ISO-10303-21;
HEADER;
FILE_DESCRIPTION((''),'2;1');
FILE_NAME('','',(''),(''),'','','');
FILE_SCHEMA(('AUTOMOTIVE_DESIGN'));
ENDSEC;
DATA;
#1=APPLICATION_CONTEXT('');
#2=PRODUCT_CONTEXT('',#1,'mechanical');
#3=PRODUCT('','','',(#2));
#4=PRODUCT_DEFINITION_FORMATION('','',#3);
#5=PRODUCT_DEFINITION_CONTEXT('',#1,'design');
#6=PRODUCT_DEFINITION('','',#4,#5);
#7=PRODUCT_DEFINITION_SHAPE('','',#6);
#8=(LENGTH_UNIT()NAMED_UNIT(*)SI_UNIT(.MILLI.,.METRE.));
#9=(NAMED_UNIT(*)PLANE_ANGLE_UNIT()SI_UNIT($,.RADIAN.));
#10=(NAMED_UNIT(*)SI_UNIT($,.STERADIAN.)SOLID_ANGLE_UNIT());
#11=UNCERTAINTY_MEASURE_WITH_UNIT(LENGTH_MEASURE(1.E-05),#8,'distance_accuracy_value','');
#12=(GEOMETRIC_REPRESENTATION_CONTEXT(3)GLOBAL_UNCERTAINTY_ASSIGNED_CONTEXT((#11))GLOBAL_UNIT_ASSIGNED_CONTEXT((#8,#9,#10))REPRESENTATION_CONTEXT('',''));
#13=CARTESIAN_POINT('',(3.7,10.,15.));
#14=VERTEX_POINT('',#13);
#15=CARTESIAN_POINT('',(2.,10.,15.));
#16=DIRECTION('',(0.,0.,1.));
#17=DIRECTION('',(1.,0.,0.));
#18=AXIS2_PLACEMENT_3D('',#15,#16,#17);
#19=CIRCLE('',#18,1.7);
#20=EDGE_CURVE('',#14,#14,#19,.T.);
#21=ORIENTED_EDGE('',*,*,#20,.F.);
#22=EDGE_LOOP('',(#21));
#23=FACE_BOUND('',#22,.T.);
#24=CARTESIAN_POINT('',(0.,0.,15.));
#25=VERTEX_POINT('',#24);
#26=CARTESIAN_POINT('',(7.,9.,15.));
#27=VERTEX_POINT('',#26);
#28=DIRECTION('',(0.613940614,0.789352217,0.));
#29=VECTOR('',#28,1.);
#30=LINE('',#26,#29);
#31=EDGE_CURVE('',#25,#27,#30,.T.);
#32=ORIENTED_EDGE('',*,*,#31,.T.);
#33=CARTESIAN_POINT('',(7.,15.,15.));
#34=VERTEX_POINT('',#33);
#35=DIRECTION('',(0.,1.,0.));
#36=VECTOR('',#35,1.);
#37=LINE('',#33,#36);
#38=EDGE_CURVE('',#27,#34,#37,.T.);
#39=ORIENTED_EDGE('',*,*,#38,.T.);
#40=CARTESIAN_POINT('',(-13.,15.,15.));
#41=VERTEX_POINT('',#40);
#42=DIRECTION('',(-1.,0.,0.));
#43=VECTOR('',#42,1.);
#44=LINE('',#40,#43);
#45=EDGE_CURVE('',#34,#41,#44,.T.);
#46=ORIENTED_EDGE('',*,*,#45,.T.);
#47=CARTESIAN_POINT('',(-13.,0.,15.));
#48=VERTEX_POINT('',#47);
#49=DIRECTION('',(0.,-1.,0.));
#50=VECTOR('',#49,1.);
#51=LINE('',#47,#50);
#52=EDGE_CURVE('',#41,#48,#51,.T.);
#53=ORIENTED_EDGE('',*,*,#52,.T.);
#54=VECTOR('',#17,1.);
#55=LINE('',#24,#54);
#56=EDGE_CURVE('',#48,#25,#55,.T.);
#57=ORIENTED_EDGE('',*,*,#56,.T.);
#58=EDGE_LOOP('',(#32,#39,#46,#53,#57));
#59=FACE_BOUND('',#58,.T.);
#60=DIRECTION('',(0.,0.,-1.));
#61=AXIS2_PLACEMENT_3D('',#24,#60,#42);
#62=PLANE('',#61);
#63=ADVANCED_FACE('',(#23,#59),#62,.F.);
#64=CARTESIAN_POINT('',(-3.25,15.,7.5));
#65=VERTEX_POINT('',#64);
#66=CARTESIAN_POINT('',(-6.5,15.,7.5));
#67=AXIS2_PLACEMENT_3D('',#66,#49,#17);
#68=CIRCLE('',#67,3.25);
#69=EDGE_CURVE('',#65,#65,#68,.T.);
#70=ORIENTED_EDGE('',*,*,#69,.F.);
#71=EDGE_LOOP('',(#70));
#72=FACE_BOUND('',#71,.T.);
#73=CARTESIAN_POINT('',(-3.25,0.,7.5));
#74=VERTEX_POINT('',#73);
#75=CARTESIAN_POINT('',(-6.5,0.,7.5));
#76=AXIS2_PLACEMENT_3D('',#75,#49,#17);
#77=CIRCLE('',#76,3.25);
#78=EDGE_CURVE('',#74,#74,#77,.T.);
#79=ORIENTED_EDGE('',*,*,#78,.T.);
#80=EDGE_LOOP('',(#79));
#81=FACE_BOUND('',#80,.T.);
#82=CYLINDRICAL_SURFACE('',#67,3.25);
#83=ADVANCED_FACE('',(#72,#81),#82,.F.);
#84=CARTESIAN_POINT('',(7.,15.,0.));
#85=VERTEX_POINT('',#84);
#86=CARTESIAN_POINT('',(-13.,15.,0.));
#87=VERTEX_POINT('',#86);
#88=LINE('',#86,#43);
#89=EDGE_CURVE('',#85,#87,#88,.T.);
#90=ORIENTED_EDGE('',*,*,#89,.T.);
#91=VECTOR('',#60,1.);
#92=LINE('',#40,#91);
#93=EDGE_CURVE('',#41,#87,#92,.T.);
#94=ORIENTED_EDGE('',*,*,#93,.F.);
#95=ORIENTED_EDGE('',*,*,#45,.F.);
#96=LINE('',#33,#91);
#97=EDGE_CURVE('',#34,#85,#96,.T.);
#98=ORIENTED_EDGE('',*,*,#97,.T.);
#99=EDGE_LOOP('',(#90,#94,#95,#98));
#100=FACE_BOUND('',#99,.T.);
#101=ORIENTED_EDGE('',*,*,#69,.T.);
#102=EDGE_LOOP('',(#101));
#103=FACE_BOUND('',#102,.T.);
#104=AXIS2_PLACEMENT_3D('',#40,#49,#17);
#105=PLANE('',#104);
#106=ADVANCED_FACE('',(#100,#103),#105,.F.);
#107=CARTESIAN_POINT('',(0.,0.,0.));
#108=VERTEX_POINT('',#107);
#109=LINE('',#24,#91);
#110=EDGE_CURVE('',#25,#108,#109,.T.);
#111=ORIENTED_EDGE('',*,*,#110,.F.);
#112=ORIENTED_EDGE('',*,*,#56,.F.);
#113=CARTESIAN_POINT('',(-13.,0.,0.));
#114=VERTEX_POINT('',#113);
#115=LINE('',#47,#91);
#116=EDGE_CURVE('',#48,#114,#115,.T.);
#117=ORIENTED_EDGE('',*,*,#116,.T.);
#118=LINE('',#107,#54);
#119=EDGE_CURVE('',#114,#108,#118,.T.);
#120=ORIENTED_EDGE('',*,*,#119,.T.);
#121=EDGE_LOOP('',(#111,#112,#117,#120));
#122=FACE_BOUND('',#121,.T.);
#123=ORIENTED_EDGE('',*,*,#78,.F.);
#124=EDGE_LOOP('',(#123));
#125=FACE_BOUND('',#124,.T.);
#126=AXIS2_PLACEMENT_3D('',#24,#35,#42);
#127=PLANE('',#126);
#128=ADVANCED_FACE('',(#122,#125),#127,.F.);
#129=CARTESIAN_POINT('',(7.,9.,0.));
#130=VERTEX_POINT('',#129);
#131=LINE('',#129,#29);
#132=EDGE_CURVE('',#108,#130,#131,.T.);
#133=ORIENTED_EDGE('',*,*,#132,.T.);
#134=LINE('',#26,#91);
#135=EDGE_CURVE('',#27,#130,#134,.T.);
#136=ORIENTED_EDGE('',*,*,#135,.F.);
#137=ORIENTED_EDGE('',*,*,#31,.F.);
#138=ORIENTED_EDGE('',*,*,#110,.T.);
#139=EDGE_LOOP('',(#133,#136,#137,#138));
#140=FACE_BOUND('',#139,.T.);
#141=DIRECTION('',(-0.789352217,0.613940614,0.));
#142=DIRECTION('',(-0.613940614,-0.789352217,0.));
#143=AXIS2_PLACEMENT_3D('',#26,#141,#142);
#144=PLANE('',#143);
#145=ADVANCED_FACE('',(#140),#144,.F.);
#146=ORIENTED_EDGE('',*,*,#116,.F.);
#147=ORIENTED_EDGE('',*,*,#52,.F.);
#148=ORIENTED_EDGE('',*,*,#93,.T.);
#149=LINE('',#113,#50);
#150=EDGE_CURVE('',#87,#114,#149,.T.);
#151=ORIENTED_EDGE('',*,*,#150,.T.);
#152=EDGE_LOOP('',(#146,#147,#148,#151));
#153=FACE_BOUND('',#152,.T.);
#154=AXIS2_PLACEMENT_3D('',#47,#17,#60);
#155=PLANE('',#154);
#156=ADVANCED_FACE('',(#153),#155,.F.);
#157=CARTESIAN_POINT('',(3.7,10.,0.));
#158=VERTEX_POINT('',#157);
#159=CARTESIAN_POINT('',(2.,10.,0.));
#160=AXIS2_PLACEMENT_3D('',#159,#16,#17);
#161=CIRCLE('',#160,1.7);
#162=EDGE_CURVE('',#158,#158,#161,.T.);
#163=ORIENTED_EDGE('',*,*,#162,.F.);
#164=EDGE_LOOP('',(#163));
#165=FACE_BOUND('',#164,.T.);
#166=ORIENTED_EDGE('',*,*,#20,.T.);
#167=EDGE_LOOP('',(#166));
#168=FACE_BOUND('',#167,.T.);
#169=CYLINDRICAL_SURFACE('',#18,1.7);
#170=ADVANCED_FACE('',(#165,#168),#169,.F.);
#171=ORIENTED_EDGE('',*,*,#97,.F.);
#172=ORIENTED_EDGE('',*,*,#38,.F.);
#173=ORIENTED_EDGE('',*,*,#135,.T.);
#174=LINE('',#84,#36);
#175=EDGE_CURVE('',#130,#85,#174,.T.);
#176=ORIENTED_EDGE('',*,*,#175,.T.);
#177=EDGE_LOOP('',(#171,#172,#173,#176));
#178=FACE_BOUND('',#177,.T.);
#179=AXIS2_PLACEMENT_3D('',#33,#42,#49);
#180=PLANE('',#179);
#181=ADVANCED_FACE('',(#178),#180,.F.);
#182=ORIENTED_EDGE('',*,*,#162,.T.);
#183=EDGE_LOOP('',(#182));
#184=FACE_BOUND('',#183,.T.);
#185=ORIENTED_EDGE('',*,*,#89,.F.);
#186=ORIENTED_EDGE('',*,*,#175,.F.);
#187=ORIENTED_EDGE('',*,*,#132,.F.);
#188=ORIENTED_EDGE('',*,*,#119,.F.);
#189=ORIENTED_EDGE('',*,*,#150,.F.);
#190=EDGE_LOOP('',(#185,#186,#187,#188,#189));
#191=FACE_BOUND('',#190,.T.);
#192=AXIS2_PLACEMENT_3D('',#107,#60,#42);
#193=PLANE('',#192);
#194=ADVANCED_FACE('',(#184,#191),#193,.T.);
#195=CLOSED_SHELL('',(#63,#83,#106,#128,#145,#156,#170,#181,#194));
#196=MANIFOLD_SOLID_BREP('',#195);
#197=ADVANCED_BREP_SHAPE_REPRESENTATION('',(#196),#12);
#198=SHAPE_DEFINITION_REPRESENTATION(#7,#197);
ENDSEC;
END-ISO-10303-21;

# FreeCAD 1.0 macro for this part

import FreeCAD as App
import Part
import Sketcher

V = App.Vector


def add_polygon(sketch, points):
    """Adds a closed chain of lines whose ends are joined by coincident constraints."""
    first, n = sketch.GeometryCount, len(points)
    for a, b in zip(points, points[1:] + points[:1]):
        sketch.addGeometry(Part.LineSegment(App.Vector(*a, 0), App.Vector(*b, 0)), False)
    for i in range(n):
        sketch.addConstraint(Sketcher.Constraint("Coincident", first + i, 2, first + (i + 1) % n, 1))

doc = App.newDocument("Part")
body = doc.addObject("PartDesign::Body", "Body")

# Sketch on XY plane
sketch1 = doc.addObject("Sketcher::SketchObject", "Sketch")
body.addObject(sketch1)
sketch1.AttachmentSupport = (doc.XY_Plane, [""])
sketch1.MapMode = "FlatFace"
add_polygon(sketch1, [(-13, 0), (0, 0), (7, 9), (7, 15), (-13, 15)])  # lines 0-4
sketch1.addConstraint([
    Sketcher.Constraint("Horizontal", 0),
    Sketcher.Constraint("Vertical", 2),
    Sketcher.Constraint("Horizontal", 3),
    Sketcher.Constraint("Vertical", 4),
    Sketcher.Constraint("Coincident", 0, 2, -1, 1),
    Sketcher.Constraint("DistanceX", 0, 1, 0, 2, 13.0),
    Sketcher.Constraint("DistanceX", 3, 2, 3, 1, 20.0),
    Sketcher.Constraint("DistanceY", 2, 1, 2, 2, 6.0),
    Sketcher.Constraint("DistanceY", 4, 2, 4, 1, 15.0),
])
pad1 = doc.addObject("PartDesign::Pad", "Pad")
body.addObject(pad1)
pad1.Profile = sketch1
pad1.Length = 15

# Sketch on XY plane
sketch2 = doc.addObject("Sketcher::SketchObject", "Sketch001")
body.addObject(sketch2)
sketch2.AttachmentSupport = (doc.XY_Plane, [""])
sketch2.MapMode = "FlatFace"
sketch2.AttachmentOffset = App.Placement(V(0, 0, 15), App.Rotation())
sketch2.addGeometry(Part.Circle(V(2, 10, 0), V(0, 0, 1), 1.7), False)
sketch2.addConstraint([
    Sketcher.Constraint("Diameter", 0, 3.4),
    Sketcher.Constraint("DistanceX", -1, 1, 0, 3, 2.0),
    Sketcher.Constraint("DistanceY", -1, 1, 0, 3, 10.0),
])
doc.recompute()
hole = doc.addObject("PartDesign::Hole", "Hole")
body.addObject(hole)
hole.Profile = sketch2
hole.ThreadType = "None"
hole.Diameter = 3.4
hole.DepthType = "ThroughAll"

# Sketch on XZ plane
sketch3 = doc.addObject("Sketcher::SketchObject", "Sketch002")
body.addObject(sketch3)
sketch3.AttachmentSupport = (doc.XZ_Plane, [""])
sketch3.MapMode = "FlatFace"
sketch3.addGeometry(Part.Circle(V(-6.5, 7.5, 0), V(0, 0, 1), 3.2), False)
sketch3.addConstraint([
    Sketcher.Constraint("Diameter", 0, 6.5),
    Sketcher.Constraint("DistanceX", 0, 3, -1, 1, 6.5),
    Sketcher.Constraint("DistanceY", -1, 1, 0, 3, 7.5),
])
pocket1 = doc.addObject("PartDesign::Pocket", "Pocket")
body.addObject(pocket1)
pocket1.Profile = sketch3
pocket1.Type = "ThroughAll"

doc.recompute()
